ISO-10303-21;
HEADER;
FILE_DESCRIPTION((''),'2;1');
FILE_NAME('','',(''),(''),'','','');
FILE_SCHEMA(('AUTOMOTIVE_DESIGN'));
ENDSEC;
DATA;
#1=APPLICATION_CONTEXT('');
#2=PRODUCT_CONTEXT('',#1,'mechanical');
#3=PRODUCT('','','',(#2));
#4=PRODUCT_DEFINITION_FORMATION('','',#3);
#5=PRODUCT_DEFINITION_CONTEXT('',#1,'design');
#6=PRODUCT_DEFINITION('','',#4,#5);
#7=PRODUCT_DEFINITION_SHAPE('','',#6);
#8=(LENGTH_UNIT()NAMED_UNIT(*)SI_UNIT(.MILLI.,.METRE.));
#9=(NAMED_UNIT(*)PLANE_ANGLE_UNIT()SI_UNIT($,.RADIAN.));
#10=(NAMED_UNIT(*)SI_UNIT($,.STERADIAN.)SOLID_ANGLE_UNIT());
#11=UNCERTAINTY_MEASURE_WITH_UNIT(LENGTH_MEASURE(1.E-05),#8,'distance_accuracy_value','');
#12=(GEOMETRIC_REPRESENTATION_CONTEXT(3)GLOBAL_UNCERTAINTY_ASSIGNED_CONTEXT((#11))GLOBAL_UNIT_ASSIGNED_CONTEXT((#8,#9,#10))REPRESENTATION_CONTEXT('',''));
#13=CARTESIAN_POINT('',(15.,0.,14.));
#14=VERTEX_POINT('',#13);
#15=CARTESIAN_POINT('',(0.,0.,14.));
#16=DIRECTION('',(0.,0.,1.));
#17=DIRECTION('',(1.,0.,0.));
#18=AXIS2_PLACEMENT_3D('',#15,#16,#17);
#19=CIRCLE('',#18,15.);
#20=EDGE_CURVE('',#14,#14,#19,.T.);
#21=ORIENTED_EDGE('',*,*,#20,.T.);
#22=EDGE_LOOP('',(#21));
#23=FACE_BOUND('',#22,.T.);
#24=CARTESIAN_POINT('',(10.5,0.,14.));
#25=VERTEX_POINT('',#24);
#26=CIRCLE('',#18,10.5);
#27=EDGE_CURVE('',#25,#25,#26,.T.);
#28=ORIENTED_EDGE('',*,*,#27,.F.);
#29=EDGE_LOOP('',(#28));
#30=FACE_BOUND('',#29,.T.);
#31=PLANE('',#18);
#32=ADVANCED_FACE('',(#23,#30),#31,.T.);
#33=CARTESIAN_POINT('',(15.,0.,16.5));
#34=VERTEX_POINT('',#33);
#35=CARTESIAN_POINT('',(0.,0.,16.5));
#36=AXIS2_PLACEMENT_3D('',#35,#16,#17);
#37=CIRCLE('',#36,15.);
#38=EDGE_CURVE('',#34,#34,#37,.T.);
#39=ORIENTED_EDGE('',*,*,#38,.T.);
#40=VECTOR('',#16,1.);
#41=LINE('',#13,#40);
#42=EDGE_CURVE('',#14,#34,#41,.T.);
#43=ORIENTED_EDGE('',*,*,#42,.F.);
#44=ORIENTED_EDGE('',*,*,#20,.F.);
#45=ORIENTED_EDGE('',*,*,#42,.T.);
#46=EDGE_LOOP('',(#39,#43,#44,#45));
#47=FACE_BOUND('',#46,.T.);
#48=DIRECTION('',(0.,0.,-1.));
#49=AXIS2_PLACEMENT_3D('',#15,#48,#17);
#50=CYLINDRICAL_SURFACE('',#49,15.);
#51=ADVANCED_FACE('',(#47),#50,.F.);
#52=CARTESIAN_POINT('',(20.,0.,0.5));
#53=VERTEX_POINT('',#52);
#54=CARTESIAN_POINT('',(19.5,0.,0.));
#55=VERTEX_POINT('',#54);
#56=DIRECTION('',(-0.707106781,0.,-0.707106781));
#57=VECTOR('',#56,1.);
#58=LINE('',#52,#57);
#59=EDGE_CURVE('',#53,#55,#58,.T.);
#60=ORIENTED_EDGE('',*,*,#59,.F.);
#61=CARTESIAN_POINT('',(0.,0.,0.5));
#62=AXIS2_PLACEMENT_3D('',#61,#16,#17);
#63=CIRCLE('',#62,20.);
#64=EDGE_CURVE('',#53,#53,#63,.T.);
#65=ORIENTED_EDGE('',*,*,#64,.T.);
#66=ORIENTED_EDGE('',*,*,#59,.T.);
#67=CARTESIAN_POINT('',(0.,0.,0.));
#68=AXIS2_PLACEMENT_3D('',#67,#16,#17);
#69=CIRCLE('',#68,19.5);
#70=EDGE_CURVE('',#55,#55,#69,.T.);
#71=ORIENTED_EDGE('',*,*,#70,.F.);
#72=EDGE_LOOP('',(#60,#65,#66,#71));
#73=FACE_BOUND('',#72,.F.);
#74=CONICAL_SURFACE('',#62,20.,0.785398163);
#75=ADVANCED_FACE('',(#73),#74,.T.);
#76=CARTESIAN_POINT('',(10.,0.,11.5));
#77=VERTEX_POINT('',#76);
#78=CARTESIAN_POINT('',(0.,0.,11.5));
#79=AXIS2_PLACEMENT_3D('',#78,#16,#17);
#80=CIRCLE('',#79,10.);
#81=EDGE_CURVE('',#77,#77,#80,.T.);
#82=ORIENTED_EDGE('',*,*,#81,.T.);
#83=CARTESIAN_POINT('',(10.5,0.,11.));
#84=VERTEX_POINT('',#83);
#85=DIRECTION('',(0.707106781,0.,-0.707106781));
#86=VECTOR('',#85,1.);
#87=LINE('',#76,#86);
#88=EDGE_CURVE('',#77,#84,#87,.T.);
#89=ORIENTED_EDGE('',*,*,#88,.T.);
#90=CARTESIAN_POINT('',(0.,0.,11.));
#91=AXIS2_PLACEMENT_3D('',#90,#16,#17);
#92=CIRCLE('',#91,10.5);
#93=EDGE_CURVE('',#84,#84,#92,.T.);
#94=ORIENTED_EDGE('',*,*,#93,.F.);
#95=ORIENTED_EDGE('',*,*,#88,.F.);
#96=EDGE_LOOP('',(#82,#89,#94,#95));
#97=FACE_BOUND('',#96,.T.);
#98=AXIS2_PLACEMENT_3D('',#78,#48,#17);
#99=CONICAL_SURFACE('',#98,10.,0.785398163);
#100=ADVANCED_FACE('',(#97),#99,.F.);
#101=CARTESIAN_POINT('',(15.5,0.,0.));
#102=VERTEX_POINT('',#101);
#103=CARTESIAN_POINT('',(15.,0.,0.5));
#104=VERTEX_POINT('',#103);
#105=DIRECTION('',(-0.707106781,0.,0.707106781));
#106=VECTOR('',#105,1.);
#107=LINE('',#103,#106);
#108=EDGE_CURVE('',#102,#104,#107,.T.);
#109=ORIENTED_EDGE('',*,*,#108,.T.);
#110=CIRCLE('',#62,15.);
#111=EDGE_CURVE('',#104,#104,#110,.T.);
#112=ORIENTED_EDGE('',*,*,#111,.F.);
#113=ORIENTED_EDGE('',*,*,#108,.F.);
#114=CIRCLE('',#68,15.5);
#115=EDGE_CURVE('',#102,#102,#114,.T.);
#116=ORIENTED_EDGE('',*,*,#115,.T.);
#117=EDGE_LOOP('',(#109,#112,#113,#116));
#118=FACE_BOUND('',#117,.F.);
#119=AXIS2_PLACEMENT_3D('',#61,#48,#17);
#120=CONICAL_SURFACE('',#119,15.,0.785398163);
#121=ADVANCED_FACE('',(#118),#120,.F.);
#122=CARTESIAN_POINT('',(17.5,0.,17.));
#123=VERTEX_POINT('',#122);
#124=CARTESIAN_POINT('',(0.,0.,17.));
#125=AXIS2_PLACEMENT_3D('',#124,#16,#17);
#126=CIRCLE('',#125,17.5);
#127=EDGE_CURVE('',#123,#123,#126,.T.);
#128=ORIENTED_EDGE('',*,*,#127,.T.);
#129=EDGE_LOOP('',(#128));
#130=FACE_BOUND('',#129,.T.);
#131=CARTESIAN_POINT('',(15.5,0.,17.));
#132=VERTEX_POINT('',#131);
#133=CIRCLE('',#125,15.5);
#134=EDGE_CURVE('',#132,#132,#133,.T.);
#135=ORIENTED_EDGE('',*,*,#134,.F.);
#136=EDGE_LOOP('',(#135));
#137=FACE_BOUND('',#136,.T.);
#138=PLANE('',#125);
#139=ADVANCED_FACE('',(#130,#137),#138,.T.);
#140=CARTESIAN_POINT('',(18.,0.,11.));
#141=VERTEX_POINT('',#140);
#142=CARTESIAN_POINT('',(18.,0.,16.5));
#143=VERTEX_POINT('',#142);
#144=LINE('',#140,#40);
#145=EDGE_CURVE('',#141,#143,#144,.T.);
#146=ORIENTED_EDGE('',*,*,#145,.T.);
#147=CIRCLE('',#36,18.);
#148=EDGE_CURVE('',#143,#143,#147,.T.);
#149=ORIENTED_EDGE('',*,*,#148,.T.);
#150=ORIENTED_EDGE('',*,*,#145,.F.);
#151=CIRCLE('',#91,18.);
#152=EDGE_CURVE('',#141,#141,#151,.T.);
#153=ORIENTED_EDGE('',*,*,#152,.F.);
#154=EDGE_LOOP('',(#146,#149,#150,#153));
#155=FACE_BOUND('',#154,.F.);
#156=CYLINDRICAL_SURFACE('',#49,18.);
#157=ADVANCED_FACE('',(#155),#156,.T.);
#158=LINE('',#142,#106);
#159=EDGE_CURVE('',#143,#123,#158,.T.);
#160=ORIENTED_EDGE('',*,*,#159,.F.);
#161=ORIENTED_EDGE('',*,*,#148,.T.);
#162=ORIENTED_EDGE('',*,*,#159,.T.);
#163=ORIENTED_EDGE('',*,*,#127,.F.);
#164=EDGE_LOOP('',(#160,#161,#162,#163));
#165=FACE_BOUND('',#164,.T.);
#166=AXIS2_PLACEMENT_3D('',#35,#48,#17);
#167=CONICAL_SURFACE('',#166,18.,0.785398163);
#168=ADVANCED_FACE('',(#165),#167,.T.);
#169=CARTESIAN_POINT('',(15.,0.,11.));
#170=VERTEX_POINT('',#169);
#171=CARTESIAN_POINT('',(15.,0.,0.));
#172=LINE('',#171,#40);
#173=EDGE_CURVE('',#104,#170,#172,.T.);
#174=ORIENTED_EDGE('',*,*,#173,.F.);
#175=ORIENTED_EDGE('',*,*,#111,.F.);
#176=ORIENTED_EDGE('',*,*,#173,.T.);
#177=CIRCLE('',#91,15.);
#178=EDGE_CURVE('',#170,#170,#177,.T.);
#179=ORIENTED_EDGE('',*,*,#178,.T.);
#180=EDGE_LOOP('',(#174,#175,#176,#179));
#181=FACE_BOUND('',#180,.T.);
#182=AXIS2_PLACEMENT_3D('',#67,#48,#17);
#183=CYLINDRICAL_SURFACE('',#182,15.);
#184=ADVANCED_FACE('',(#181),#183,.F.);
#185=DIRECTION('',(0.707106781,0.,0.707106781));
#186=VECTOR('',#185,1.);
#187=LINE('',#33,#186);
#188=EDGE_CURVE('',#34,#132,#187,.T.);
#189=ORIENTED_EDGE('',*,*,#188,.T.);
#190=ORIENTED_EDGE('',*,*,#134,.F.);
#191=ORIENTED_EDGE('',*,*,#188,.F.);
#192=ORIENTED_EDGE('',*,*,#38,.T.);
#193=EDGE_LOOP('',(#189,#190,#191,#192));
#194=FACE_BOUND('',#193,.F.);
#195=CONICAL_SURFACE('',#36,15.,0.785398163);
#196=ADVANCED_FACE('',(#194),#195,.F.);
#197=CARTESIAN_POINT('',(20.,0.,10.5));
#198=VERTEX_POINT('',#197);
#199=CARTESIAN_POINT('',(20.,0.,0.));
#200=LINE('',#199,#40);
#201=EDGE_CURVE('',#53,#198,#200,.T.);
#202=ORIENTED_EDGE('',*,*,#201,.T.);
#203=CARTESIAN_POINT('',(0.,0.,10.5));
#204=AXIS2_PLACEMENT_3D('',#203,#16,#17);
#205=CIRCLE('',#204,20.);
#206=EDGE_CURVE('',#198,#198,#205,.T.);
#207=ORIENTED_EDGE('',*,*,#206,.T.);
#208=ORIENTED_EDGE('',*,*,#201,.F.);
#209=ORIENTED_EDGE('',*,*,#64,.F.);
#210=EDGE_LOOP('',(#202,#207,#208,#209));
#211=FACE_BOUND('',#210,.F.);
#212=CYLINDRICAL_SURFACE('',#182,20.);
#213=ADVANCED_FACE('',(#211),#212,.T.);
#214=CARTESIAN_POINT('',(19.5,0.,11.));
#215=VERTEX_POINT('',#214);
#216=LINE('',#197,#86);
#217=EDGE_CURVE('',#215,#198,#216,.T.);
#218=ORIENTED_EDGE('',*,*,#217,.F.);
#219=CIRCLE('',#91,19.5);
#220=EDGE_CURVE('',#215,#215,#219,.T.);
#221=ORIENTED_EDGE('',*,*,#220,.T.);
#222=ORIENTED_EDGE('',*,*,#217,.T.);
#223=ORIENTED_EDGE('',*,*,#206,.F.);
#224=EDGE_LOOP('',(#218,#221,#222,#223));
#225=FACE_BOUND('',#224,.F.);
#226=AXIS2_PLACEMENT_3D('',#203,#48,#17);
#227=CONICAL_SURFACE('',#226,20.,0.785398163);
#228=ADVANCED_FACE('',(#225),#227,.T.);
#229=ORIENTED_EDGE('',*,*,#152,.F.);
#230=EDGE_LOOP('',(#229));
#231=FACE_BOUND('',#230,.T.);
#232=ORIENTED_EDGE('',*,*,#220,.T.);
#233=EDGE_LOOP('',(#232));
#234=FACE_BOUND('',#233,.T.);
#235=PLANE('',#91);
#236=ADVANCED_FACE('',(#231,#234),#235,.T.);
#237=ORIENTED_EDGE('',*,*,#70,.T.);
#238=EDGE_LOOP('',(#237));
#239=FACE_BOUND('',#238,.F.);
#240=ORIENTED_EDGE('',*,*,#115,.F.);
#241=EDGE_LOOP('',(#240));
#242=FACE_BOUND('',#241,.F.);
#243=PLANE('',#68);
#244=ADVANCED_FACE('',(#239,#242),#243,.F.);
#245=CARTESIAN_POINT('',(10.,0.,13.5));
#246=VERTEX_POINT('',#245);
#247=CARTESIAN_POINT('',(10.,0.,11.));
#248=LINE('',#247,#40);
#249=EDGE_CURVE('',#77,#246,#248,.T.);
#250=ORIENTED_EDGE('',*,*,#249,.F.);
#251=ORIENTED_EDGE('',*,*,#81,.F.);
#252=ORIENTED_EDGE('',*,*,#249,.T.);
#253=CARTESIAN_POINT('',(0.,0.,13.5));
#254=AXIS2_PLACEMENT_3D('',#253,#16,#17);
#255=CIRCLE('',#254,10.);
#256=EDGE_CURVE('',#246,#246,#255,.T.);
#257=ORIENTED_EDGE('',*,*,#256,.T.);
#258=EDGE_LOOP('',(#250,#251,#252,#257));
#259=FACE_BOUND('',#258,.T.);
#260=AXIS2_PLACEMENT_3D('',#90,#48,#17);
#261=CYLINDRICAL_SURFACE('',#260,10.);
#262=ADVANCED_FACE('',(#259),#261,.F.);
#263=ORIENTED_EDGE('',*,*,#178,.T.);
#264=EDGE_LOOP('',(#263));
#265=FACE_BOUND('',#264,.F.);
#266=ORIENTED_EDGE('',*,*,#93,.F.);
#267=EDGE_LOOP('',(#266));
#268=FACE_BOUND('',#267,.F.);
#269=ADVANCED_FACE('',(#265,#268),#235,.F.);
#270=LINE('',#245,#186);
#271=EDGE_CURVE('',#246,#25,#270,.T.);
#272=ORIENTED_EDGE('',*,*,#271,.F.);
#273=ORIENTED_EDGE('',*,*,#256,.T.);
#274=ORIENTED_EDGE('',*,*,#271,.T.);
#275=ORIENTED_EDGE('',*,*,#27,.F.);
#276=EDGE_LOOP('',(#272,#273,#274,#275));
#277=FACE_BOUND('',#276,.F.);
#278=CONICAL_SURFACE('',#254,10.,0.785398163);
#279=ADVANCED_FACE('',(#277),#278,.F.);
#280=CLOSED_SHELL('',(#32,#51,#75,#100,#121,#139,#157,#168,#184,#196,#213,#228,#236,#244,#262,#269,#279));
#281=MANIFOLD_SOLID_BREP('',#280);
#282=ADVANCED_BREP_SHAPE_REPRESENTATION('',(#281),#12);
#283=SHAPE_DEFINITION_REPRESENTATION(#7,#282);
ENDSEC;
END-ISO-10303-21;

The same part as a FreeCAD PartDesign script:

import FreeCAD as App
import Part
import Sketcher


def edges_at(feature, points):
    """Names of the edges that pass closest to the given points."""
    edges = feature.Shape.Edges
    near = lambda p: min(range(len(edges)), key=lambda i: edges[i].distToShape(Part.Vertex(*p))[0])
    return sorted({f"Edge{near(p) + 1}" for p in points})

doc = App.newDocument("Part")
params = doc.addObject("Spreadsheet::Sheet", "Params")
for row, (alias, value) in enumerate([
    ("sketch1_diameter", "40 mm"),
    ("sketch1_diameter2", "30 mm"),
    ("pad1_length", "11 mm"),
    ("sketch2_diameter", "36 mm"),
    ("sketch2_diameter2", "20 mm"),
    ("pad2_length", "3 mm"),
    ("sketch3_diameter", "36 mm"),
    ("sketch3_diameter2", "30 mm"),
    ("pad3_length", "3 mm"),
    ("chamfer_size", "0.5 mm"),
    ("chamfer2_size", "0.5 mm"),
], start=1):
    params.set(f"A{row}", alias)
    params.set(f"B{row}", "=" + value)
    params.setAlias(f"B{row}", alias)

body = doc.addObject("PartDesign::Body", "Body")

# Sketch on XY plane
sketch1 = doc.addObject("Sketcher::SketchObject", "Sketch")
body.addObject(sketch1)
sketch1.AttachmentSupport = (doc.XY_Plane, [""])
sketch1.MapMode = "FlatFace"
sketch1.addGeometry(Part.Circle(App.Vector(0, 0, 0), App.Vector(0, 0, 1), 20), False)
sketch1.addGeometry(Part.Circle(App.Vector(0, 0, 0), App.Vector(0, 0, 1), 15), False)
sketch1.addConstraint(Sketcher.Constraint("Coincident", 0, 3, -1, 1))
sketch1.addConstraint(Sketcher.Constraint("Coincident", 1, 3, -1, 1))
sketch1.addConstraint(Sketcher.Constraint("Diameter", 0, 40.0))
sketch1.addConstraint(Sketcher.Constraint("Diameter", 1, 30.0))
sketch1.setExpression("Constraints[2]", "Params.sketch1_diameter")
sketch1.setExpression("Constraints[3]", "Params.sketch1_diameter2")
pad1 = doc.addObject("PartDesign::Pad", "Pad")
body.addObject(pad1)
pad1.Profile = sketch1
pad1.setExpression("Length", "Params.pad1_length")

# Sketch on XY plane
sketch2 = doc.addObject("Sketcher::SketchObject", "Sketch001")
body.addObject(sketch2)
sketch2.AttachmentSupport = (doc.XY_Plane, [""])
sketch2.MapMode = "FlatFace"
sketch2.AttachmentOffset = App.Placement(App.Vector(0, 0, 11), App.Rotation())
sketch2.addGeometry(Part.Circle(App.Vector(0, 0, 0), App.Vector(0, 0, 1), 18), False)
sketch2.addGeometry(Part.Circle(App.Vector(0, 0, 0), App.Vector(0, 0, 1), 10), False)
sketch2.addConstraint(Sketcher.Constraint("Coincident", 0, 3, -1, 1))
sketch2.addConstraint(Sketcher.Constraint("Coincident", 1, 3, -1, 1))
sketch2.addConstraint(Sketcher.Constraint("Diameter", 0, 36.0))
sketch2.addConstraint(Sketcher.Constraint("Diameter", 1, 20.0))
sketch2.setExpression("Constraints[2]", "Params.sketch2_diameter")
sketch2.setExpression("Constraints[3]", "Params.sketch2_diameter2")
pad2 = doc.addObject("PartDesign::Pad", "Pad001")
body.addObject(pad2)
pad2.Profile = sketch2
pad2.setExpression("Length", "Params.pad2_length")

# Sketch on XY plane
sketch3 = doc.addObject("Sketcher::SketchObject", "Sketch002")
body.addObject(sketch3)
sketch3.AttachmentSupport = (doc.XY_Plane, [""])
sketch3.MapMode = "FlatFace"
sketch3.AttachmentOffset = App.Placement(App.Vector(0, 0, 14), App.Rotation())
sketch3.addGeometry(Part.Circle(App.Vector(0, 0, 0), App.Vector(0, 0, 1), 18), False)
sketch3.addGeometry(Part.Circle(App.Vector(0, 0, 0), App.Vector(0, 0, 1), 15), False)
sketch3.addConstraint(Sketcher.Constraint("Coincident", 0, 3, -1, 1))
sketch3.addConstraint(Sketcher.Constraint("Coincident", 1, 3, -1, 1))
sketch3.addConstraint(Sketcher.Constraint("Diameter", 0, 36.0))
sketch3.addConstraint(Sketcher.Constraint("Diameter", 1, 30.0))
sketch3.setExpression("Constraints[2]", "Params.sketch3_diameter")
sketch3.setExpression("Constraints[3]", "Params.sketch3_diameter2")
pad3 = doc.addObject("PartDesign::Pad", "Pad002")
body.addObject(pad3)
pad3.Profile = sketch3
pad3.setExpression("Length", "Params.pad3_length")
doc.recompute()

chamfer = doc.addObject("PartDesign::Chamfer", "Chamfer")
body.addObject(chamfer)
chamfer.Base = (pad3, edges_at(pad3, [
    (-20, 0, 0),
    (-15, 0, 0),
    (-20, 0, 11),
    (-18, 0, 17),
    (-15, 0, 17),
    (-10, 0, 14),
]))
chamfer.setExpression("Size", "Params.chamfer_size")
doc.recompute()

chamfer2 = doc.addObject("PartDesign::Chamfer", "Chamfer001")
body.addObject(chamfer2)
chamfer2.Base = (chamfer, edges_at(chamfer, [(-10, 0, 11)]))
chamfer2.setExpression("Size", "Params.chamfer2_size")

doc.recompute()
